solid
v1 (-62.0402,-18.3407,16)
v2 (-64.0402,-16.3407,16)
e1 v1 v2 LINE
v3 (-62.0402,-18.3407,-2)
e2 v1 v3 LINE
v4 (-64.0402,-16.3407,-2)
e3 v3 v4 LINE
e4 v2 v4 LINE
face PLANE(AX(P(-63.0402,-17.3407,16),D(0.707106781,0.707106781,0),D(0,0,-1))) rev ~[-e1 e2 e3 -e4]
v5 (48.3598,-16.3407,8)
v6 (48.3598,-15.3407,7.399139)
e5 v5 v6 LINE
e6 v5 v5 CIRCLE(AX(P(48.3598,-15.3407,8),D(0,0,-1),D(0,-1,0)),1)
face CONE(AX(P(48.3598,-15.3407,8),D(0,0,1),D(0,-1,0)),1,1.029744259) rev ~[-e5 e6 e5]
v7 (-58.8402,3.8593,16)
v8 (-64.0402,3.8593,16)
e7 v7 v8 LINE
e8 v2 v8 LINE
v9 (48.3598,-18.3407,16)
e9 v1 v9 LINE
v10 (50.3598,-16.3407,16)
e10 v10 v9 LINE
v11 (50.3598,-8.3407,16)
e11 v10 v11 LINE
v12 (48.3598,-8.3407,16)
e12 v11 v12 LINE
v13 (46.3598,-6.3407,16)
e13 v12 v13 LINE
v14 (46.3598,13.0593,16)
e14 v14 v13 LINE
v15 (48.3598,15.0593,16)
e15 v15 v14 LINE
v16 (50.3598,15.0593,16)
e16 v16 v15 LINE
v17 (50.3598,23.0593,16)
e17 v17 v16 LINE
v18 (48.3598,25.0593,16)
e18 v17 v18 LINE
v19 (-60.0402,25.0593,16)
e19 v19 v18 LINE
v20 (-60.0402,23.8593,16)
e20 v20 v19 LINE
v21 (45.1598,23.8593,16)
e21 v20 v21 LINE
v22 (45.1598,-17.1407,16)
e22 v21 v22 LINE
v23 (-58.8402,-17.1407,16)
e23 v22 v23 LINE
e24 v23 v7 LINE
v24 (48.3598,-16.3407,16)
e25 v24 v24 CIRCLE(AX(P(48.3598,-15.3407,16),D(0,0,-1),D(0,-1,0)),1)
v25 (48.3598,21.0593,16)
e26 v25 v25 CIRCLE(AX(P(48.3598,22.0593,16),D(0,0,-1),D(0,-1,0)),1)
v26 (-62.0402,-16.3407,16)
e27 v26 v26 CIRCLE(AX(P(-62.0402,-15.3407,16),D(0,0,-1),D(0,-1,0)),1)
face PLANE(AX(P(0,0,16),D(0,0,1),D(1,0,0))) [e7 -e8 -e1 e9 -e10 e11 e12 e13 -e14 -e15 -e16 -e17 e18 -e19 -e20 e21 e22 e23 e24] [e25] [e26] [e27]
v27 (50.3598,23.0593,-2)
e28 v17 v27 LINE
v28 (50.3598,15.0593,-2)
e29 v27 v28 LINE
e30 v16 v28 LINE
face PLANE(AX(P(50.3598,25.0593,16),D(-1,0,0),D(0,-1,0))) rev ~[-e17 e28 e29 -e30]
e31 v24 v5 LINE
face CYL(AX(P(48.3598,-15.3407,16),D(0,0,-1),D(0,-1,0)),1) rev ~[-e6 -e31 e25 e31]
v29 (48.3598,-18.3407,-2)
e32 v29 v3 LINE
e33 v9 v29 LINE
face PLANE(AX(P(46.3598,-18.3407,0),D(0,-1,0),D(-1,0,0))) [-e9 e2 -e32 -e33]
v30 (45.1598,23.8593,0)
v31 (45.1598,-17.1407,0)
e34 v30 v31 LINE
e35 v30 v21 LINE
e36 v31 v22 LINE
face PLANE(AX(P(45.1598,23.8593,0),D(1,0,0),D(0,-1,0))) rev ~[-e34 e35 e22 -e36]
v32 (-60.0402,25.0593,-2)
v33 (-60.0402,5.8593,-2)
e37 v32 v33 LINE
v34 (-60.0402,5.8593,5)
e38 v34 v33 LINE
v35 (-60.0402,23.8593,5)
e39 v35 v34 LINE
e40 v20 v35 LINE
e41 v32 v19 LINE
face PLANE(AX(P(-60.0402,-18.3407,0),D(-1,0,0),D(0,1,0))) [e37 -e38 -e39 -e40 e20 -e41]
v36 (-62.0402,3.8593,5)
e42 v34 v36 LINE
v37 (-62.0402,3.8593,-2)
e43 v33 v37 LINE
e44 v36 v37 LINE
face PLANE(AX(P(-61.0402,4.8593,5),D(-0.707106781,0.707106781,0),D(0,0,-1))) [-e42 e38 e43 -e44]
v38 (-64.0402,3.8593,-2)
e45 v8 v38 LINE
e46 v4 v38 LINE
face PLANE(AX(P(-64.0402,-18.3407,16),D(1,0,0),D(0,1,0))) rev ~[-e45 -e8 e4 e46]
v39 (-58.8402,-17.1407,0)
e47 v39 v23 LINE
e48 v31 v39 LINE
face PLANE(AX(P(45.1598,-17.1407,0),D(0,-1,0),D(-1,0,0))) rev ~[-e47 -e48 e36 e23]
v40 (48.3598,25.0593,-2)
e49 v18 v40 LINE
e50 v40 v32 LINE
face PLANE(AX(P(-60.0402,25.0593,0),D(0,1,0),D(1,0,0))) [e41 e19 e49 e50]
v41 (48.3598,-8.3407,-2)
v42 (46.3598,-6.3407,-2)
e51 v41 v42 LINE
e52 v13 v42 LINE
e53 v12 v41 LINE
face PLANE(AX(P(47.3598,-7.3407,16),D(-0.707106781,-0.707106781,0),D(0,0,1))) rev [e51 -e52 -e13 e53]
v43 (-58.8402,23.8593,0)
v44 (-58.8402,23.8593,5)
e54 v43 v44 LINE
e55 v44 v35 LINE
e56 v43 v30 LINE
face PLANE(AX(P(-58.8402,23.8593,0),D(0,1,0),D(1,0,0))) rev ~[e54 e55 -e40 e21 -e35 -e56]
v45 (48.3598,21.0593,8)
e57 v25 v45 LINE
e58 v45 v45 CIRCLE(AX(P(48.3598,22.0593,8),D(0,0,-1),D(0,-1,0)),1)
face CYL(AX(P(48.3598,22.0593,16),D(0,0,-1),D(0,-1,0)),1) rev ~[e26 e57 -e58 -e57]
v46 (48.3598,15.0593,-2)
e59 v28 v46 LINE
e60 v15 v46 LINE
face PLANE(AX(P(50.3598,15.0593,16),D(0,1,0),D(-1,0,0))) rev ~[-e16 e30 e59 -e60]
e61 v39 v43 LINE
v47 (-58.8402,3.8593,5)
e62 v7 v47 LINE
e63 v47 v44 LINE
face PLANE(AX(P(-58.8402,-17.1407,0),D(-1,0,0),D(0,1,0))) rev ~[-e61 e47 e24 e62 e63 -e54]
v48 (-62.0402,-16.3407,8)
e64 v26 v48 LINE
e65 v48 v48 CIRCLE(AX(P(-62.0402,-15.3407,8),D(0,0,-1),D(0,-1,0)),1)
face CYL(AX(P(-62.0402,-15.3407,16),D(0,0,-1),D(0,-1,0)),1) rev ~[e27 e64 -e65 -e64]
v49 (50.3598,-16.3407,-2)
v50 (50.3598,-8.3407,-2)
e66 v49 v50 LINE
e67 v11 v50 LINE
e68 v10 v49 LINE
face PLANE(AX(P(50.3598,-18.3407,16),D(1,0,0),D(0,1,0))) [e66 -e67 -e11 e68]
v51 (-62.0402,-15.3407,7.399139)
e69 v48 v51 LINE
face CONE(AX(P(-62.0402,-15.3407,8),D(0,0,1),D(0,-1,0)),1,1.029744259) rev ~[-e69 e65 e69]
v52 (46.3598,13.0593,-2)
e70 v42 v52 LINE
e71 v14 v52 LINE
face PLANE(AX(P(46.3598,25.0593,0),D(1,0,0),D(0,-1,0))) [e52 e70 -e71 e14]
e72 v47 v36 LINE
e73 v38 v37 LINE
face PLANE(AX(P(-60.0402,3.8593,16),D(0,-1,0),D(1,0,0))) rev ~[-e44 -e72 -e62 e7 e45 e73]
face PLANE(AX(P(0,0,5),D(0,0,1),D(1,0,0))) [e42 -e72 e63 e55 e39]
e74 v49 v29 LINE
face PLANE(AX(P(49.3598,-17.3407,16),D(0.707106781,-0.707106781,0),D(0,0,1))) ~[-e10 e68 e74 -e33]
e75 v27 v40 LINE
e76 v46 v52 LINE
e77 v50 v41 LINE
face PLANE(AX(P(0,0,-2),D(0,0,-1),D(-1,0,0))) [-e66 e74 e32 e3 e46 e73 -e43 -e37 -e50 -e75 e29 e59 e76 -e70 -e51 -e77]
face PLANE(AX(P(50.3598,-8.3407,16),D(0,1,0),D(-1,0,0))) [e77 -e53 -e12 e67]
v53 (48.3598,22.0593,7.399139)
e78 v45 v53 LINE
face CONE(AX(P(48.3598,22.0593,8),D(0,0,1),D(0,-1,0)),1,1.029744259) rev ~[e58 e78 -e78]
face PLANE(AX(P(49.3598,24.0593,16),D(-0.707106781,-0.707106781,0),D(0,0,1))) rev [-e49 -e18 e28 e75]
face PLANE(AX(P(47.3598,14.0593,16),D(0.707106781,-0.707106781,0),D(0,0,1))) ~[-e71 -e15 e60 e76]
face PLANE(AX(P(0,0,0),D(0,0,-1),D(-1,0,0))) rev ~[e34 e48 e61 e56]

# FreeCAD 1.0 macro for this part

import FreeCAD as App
import Part
import Sketcher

V = App.Vector
Q = App.Units.Quantity


def edges_at(feature, points):
    """Names of the edges that pass closest to the given points."""
    edges = feature.Shape.Edges
    near = lambda p: min(range(len(edges)), key=lambda i: edges[i].distToShape(Part.Vertex(*p))[0])
    return sorted({f"Edge{near(p) + 1}" for p in points})


def add_polygon(sketch, points):
    """Adds a closed chain of lines whose ends are joined by coincident constraints."""
    first, n = sketch.GeometryCount, len(points)
    for a, b in zip(points, points[1:] + points[:1]):
        sketch.addGeometry(Part.LineSegment(App.Vector(*a, 0), App.Vector(*b, 0)), False)
    for i in range(n):
        sketch.addConstraint(Sketcher.Constraint("Coincident", first + i, 2, first + (i + 1) % n, 1))

doc = App.newDocument("Part")
body = doc.addObject("PartDesign::Body", "Body")

# Sketch on XY plane
sketch1 = body.newObject("Sketcher::SketchObject", "Sketch")
sketch1.AttachmentSupport = (doc.getObject("XY_Plane"), [""])
sketch1.MapMode = "FlatFace"
add_polygon(sketch1, [(46, 25), (-60, 25), (-60, -18), (46, -18)])  # lines 0-3
add_polygon(sketch1, [(-59, -17), (-59, 24), (45, 24), (45, -17)])  # lines 4-7
sketch1.addConstraint([
    Sketcher.Constraint("Horizontal", 0),
    Sketcher.Constraint("Vertical", 1),
    Sketcher.Constraint("Horizontal", 2),
    Sketcher.Constraint("Vertical", 3),
    Sketcher.Constraint("Vertical", 4),
    Sketcher.Constraint("Horizontal", 5),
    Sketcher.Constraint("Vertical", 6),
    Sketcher.Constraint("Horizontal", 7),
    Sketcher.Constraint("DistanceX", 5, 1, 5, 2, Q("104 mm")),
    Sketcher.Constraint("DistanceY", 4, 1, 4, 2, Q("41 mm")),
    Sketcher.Constraint("DistanceX", 0, 2, 4, 2, Q("1.2 mm")),
    Sketcher.Constraint("DistanceY", 4, 2, 0, 2, Q("1.2 mm")),
    Sketcher.Constraint("DistanceX", 5, 2, 3, 2, Q("1.2 mm")),
    Sketcher.Constraint("DistanceY", 2, 2, 6, 2, Q("1.2 mm")),
    Sketcher.Constraint("DistanceX", 0, 2, -1, 1, Q("60.0402 mm")),
    Sketcher.Constraint("DistanceY", -1, 1, 0, 2, Q("25.0593 mm")),
])
pad1 = body.newObject("PartDesign::Pad", "Pad")
pad1.Profile = sketch1
pad1.Length = 16

# Sketch on XY plane
sketch2 = body.newObject("Sketcher::SketchObject", "Sketch001")
sketch2.AttachmentSupport = (doc.getObject("XY_Plane"), [""])
sketch2.MapMode = "FlatFace"
add_polygon(sketch2, [(-60, 25), (46, 25), (46, -18), (-60, -18)])  # lines 0-3
sketch2.addConstraint([
    Sketcher.Constraint("Horizontal", 0),
    Sketcher.Constraint("Vertical", 1),
    Sketcher.Constraint("Horizontal", 2),
    Sketcher.Constraint("Vertical", 3),
    Sketcher.Constraint("DistanceX", 0, 1, 0, 2, Q("106.4 mm")),
    Sketcher.Constraint("DistanceY", 1, 2, 1, 1, Q("43.4 mm")),
    Sketcher.Constraint("DistanceX", -1, 1, 0, 2, Q("46.3598 mm")),
    Sketcher.Constraint("DistanceY", -1, 1, 0, 2, Q("25.0593 mm")),
])
pad2 = body.newObject("PartDesign::Pad", "Pad001")
pad2.Profile = sketch2
pad2.Length = 2
pad2.Reversed = True

# Sketch on XY plane
sketch3 = body.newObject("Sketcher::SketchObject", "Sketch002")
sketch3.AttachmentSupport = (doc.getObject("XY_Plane"), [""])
sketch3.MapMode = "FlatFace"
sketch3.AttachmentOffset = App.Placement(V(0, 0, 16), App.Rotation())
add_polygon(sketch3, [(-58.8, 23.9), (-60, 23.9), (-60, 3.9), (-58.8, 3.9)])  # lines 0-3
sketch3.addConstraint([
    Sketcher.Constraint("Horizontal", 0),
    Sketcher.Constraint("Vertical", 1),
    Sketcher.Constraint("Horizontal", 2),
    Sketcher.Constraint("Vertical", 3),
    Sketcher.Constraint("DistanceY", 1, 2, 1, 1, Q("20 mm")),
    Sketcher.Constraint("DistanceX", 0, 2, 0, 1, Q("1.2 mm")),
    Sketcher.Constraint("DistanceX", 0, 2, -1, 1, Q("60.0402 mm")),
    Sketcher.Constraint("DistanceY", -1, 1, 0, 2, Q("23.8593 mm")),
])
pocket1 = body.newObject("PartDesign::Pocket", "Pocket")
pocket1.Profile = sketch3
pocket1.Length = 11

# Sketch on XY plane
sketch4 = body.newObject("Sketcher::SketchObject", "Sketch003")
sketch4.AttachmentSupport = (doc.getObject("XY_Plane"), [""])
sketch4.MapMode = "FlatFace"
sketch4.AttachmentOffset = App.Placement(V(0, 0, 16), App.Rotation())
add_polygon(sketch4, [(-64, -18.3), (-60, -18.3), (-60, 3.9), (-64, 3.9)])  # lines 0-3
add_polygon(sketch4, [(50.4, 25.1), (46.4, 25.1), (46.4, 15.1), (50.4, 15.1)])  # lines 4-7
add_polygon(sketch4, [(46.4, -8.3), (46.4, -18.3), (50.4, -18.3), (50.4, -8.3)])  # lines 8-11
sketch4.addConstraint([
    Sketcher.Constraint("Horizontal", 0),
    Sketcher.Constraint("Vertical", 1),
    Sketcher.Constraint("Horizontal", 2),
    Sketcher.Constraint("Vertical", 3),
    Sketcher.Constraint("Horizontal", 4),
    Sketcher.Constraint("Vertical", 5),
    Sketcher.Constraint("Horizontal", 6),
    Sketcher.Constraint("Vertical", 7),
    Sketcher.Constraint("Vertical", 8),
    Sketcher.Constraint("Horizontal", 9),
    Sketcher.Constraint("Vertical", 10),
    Sketcher.Constraint("Horizontal", 11),
    Sketcher.Constraint("Horizontal", 3, 2, 8, 2),
    Sketcher.Constraint("Vertical", 5, 2, 8, 2),
    Sketcher.Constraint("Vertical", 7, 2, 9, 2),
    Sketcher.Constraint("Equal", 2, 4),
    Sketcher.Constraint("Equal", 7, 8),
    Sketcher.Constraint("DistanceX", 0, 1, 0, 2, Q("4 mm")),
    Sketcher.Constraint("DistanceY", 5, 2, 5, 1, Q("10 mm")),
    Sketcher.Constraint("DistanceY", 1, 1, 1, 2, Q("22.2 mm")),
    Sketcher.Constraint("DistanceX", 1, 2, 4, 2, Q("106.4 mm")),
    Sketcher.Constraint("DistanceY", 1, 2, 4, 2, Q("21.2 mm")),
    Sketcher.Constraint("DistanceX", 0, 2, -1, 1, Q("60.0402 mm")),
    Sketcher.Constraint("DistanceY", 0, 2, -1, 1, Q("18.3407 mm")),
])
pad3 = body.newObject("PartDesign::Pad", "Pad002")
pad3.Profile = sketch4
pad3.Length = 18
pad3.Reversed = True
doc.recompute()

chamfer = body.newObject("PartDesign::Chamfer", "Chamfer")
chamfer.Base = (pad3, edges_at(pad3, [(-60.04, 3.859, 1.5)]))
chamfer.Size = 2
doc.recompute()

chamfer2 = body.newObject("PartDesign::Chamfer", "Chamfer001")
chamfer2.Base = (chamfer, edges_at(chamfer, [(46.36, 15.059, 7), (46.36, -8.341, 7)]))
chamfer2.Size = 2

# Sketch on XY plane
sketch5 = body.newObject("Sketcher::SketchObject", "Sketch004")
sketch5.AttachmentSupport = (doc.getObject("XY_Plane"), [""])
sketch5.MapMode = "FlatFace"
sketch5.AttachmentOffset = App.Placement(V(0, 0, 16), App.Rotation())
sketch5.addGeometry([
    Part.Circle(V(-62, -15.3, 0), V(0, 0, 1), 1),
    Part.Circle(V(48.4, -15.3, 0), V(0, 0, 1), 1),
    Part.Circle(V(48.4, 22.1, 0), V(0, 0, 1), 1),
], False)
sketch5.addConstraint([
    Sketcher.Constraint("Equal", 0, 1),
    Sketcher.Constraint("Equal", 1, 2),
    Sketcher.Constraint("Horizontal", 0, 3, 1, 3),
    Sketcher.Constraint("Vertical", 1, 3, 2, 3),
    Sketcher.Constraint("Diameter", 0, Q("2 mm")),
    Sketcher.Constraint("DistanceX", 0, 3, 1, 3, Q("110.4 mm")),
    Sketcher.Constraint("DistanceY", 1, 3, 2, 3, Q("37.4 mm")),
    Sketcher.Constraint("DistanceX", 0, 3, -1, 1, Q("62.0402 mm")),
    Sketcher.Constraint("DistanceY", 0, 3, -1, 1, Q("15.3407 mm")),
])
doc.recompute()
hole = body.newObject("PartDesign::Hole", "Hole")
hole.Profile = sketch5
hole.ThreadType = "None"
hole.Diameter = 2
hole.DepthType = "Dimension"
hole.Depth = 8
hole.DrillPoint = "Angled"
hole.DrillPointAngle = 118
doc.recompute()

chamfer3 = body.newObject("PartDesign::Chamfer", "Chamfer002")
chamfer3.Base = (hole, edges_at(hole, [(50.36, 25.059, 7), (50.36, -18.341, 7), (-64.04, -18.341, 7)]))
chamfer3.Size = 2

doc.recompute()
